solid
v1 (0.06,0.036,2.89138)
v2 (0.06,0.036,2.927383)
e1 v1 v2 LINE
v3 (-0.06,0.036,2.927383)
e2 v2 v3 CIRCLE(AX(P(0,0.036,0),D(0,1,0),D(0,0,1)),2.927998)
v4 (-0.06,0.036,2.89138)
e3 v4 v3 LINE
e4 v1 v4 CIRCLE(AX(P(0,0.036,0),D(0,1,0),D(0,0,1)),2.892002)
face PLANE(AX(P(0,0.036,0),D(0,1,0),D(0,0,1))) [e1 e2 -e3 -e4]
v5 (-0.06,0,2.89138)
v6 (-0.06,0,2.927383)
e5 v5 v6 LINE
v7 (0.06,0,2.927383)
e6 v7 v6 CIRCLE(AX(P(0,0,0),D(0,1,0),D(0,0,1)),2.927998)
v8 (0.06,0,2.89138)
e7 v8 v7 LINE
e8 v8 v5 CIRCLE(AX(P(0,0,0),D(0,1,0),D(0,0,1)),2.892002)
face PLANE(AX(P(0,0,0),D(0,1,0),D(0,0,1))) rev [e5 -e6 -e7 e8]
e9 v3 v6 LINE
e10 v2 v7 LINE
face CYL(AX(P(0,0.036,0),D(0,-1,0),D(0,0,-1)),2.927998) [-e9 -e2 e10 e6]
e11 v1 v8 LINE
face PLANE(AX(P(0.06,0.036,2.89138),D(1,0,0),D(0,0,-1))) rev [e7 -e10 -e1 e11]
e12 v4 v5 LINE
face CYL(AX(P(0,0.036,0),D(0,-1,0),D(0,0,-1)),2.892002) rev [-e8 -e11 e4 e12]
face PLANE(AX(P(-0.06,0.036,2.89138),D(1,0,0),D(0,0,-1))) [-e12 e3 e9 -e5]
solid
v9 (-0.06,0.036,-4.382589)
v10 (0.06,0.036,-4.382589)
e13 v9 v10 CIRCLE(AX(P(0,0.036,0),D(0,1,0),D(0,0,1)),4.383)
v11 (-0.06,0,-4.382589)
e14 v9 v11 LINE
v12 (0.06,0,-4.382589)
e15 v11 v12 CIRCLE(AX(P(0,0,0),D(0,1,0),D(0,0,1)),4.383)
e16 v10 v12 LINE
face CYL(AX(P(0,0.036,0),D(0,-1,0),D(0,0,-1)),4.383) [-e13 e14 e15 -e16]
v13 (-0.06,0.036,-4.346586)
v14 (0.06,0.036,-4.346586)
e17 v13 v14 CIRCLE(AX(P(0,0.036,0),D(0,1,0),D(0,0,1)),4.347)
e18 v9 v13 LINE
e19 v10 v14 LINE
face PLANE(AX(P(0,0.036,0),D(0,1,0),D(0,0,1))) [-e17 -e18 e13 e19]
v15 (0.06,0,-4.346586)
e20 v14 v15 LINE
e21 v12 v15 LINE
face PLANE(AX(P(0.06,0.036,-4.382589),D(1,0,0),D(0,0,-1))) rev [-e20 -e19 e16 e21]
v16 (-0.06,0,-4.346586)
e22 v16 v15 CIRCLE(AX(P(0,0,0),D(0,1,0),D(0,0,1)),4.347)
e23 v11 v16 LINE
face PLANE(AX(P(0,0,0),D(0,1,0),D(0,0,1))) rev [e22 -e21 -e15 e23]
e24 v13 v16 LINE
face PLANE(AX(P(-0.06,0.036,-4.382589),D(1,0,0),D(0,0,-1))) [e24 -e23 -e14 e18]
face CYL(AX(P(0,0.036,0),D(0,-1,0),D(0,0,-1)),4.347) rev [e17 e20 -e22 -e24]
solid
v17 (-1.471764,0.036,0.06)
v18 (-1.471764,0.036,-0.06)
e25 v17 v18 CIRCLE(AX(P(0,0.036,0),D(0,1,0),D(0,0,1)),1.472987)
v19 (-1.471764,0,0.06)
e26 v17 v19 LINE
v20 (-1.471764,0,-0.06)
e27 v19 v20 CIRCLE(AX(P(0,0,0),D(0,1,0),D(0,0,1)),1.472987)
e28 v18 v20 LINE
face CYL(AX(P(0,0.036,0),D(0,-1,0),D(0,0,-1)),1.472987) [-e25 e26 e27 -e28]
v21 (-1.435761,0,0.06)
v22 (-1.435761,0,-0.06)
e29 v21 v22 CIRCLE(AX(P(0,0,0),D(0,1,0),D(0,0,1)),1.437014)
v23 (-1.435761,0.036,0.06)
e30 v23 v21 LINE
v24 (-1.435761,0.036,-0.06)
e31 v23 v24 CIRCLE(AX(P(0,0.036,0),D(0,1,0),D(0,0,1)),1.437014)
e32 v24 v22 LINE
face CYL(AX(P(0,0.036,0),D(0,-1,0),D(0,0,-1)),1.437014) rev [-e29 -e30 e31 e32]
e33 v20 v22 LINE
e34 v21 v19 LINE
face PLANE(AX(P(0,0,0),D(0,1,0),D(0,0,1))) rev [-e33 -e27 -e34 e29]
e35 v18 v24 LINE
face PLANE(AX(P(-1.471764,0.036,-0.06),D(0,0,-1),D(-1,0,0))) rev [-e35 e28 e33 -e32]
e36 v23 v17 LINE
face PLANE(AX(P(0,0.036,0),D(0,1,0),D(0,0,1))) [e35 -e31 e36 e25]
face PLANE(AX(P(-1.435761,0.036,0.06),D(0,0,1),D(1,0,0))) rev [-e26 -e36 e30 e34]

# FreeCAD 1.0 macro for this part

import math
import FreeCAD as App
import Part
import Sketcher
Q = App.Units.Quantity

doc = App.newDocument("Part")
body = doc.addObject("PartDesign::Body", "Body")

sketch1 = body.newObject("Sketcher::SketchObject", "Sketch")
sketch1.AttachmentSupport = (doc.getObject("XZ_Plane"), [""])
sketch1.MapMode = "FlatFace"
sketch1.addGeometry([
    Part.LineSegment(App.Vector(0.06, -4.383, 0), App.Vector(0.06, -4.347, 0)),
    Part.ArcOfCircle(Part.Circle(App.Vector(0, 0, 0), App.Vector(0, 0, 1), 4.347), math.radians(-89), math.radians(269)),
    Part.LineSegment(App.Vector(-0.06, -4.347, 0), App.Vector(-0.06, -4.383, 0)),
    Part.ArcOfCircle(Part.Circle(App.Vector(0, 0, 0), App.Vector(0, 0, 1), 4.383), math.radians(-89), math.radians(269)),
], False)
sketch1.addConstraint([
    Sketcher.Constraint("Coincident", 0, 2, 1, 1),
    Sketcher.Constraint("Coincident", 1, 2, 2, 1),
    Sketcher.Constraint("Coincident", 2, 2, 3, 2),
    Sketcher.Constraint("Coincident", 3, 1, 0, 1),
    Sketcher.Constraint("Vertical", 0),
    Sketcher.Constraint("Vertical", 2),
    Sketcher.Constraint("Coincident", 1, 3, -1, 1),
    Sketcher.Constraint("Coincident", 3, 3, -1, 1),
    Sketcher.Constraint("Horizontal", 0, 2, 1, 2),
    Sketcher.Constraint("Radius", 1, Q("4.347 mm")),
    Sketcher.Constraint("Radius", 3, Q("4.383 mm")),
    Sketcher.Constraint("DistanceX", -1, 1, 0, 2, Q("0.06 mm")),
])
pad1 = body.newObject("PartDesign::Pad", "Pad")
pad1.Profile = sketch1
pad1.Length = 0.036
pad1.Reversed = True
body2 = doc.addObject("PartDesign::Body", "Body001")

sketch2 = body2.newObject("Sketcher::SketchObject", "Sketch001")
sketch2.AttachmentSupport = (doc.getObject("XZ_Plane001"), [""])
sketch2.MapMode = "FlatFace"
sketch2.addGeometry([
    Part.LineSegment(App.Vector(0.06, 2.891, 0), App.Vector(0.06, 2.927, 0)),
    Part.ArcOfCircle(Part.Circle(App.Vector(0, 0, 0), App.Vector(0, 0, 1), 2.928), math.radians(91), math.radians(449)),
    Part.LineSegment(App.Vector(-0.06, 2.927, 0), App.Vector(-0.06, 2.891, 0)),
    Part.ArcOfCircle(Part.Circle(App.Vector(0, 0, 0), App.Vector(0, 0, 1), 2.892), math.radians(91), math.radians(449)),
], False)
sketch2.addConstraint([
    Sketcher.Constraint("Coincident", 0, 2, 1, 2),
    Sketcher.Constraint("Coincident", 1, 1, 2, 1),
    Sketcher.Constraint("Coincident", 2, 2, 3, 1),
    Sketcher.Constraint("Coincident", 3, 2, 0, 1),
    Sketcher.Constraint("Vertical", 0),
    Sketcher.Constraint("Vertical", 2),
    Sketcher.Constraint("Coincident", 1, 3, -1, 1),
    Sketcher.Constraint("Coincident", 3, 3, -1, 1),
    Sketcher.Constraint("Horizontal", 0, 2, 1, 1),
    Sketcher.Constraint("DistanceX", -1, 1, 0, 2, Q("0.06 mm")),
    Sketcher.Constraint("Radius", 1, Q("2.927998 mm")),
    Sketcher.Constraint("Radius", 3, Q("2.892002 mm")),
])
pad2 = body2.newObject("PartDesign::Pad", "Pad001")
pad2.Profile = sketch2
pad2.Length = 0.036
pad2.Reversed = True
body3 = doc.addObject("PartDesign::Body", "Body002")

sketch3 = body3.newObject("Sketcher::SketchObject", "Sketch002")
sketch3.AttachmentSupport = (doc.getObject("XZ_Plane002"), [""])
sketch3.MapMode = "FlatFace"
sketch3.addGeometry([
    Part.LineSegment(App.Vector(-1.472, -0.06, 0), App.Vector(-1.436, -0.06, 0)),
    Part.ArcOfCircle(Part.Circle(App.Vector(0, 0, 0), App.Vector(0, 0, 1), 1.437), math.radians(-178), math.radians(178)),
    Part.LineSegment(App.Vector(-1.436, 0.06, 0), App.Vector(-1.472, 0.06, 0)),
    Part.ArcOfCircle(Part.Circle(App.Vector(0, 0, 0), App.Vector(0, 0, 1), 1.473), math.radians(-178), math.radians(178)),
], False)
sketch3.addConstraint([
    Sketcher.Constraint("Coincident", 0, 2, 1, 1),
    Sketcher.Constraint("Coincident", 1, 2, 2, 1),
    Sketcher.Constraint("Coincident", 2, 2, 3, 2),
    Sketcher.Constraint("Coincident", 3, 1, 0, 1),
    Sketcher.Constraint("Horizontal", 0),
    Sketcher.Constraint("Horizontal", 2),
    Sketcher.Constraint("Coincident", 1, 3, -1, 1),
    Sketcher.Constraint("Coincident", 3, 3, -1, 1),
    Sketcher.Constraint("Vertical", 0, 2, 1, 2),
    Sketcher.Constraint("DistanceY", 0, 2, -1, 1, Q("0.06 mm")),
    Sketcher.Constraint("Radius", 1, Q("1.437014 mm")),
    Sketcher.Constraint("Radius", 3, Q("1.472987 mm")),
])
pad3 = body3.newObject("PartDesign::Pad", "Pad002")
pad3.Profile = sketch3
pad3.Length = 0.036
pad3.Reversed = True

doc.recompute()
